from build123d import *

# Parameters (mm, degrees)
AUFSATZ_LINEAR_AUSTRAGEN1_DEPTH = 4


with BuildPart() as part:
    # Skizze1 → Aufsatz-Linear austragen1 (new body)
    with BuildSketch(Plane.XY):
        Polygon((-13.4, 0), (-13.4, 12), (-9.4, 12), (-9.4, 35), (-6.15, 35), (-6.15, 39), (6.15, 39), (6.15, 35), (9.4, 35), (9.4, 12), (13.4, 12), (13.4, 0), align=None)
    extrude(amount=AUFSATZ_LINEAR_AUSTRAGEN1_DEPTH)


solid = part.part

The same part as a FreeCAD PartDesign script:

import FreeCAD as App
import Part
import Sketcher


def add_polygon(sketch, points):
    """Adds a closed chain of lines whose ends are joined by coincident constraints."""
    first, n = sketch.GeometryCount, len(points)
    for a, b in zip(points, points[1:] + points[:1]):
        sketch.addGeometry(Part.LineSegment(App.Vector(*a, 0), App.Vector(*b, 0)), False)
    for i in range(n):
        sketch.addConstraint(Sketcher.Constraint("Coincident", first + i, 2, first + (i + 1) % n, 1))

doc = App.newDocument("Part")
params = doc.addObject("Spreadsheet::Sheet", "Params")
for row, (alias, value) in enumerate([
    ("sketch1_width", "4 mm"),
    ("sketch1_height", "12 mm"),
    ("sketch1_height2", "23 mm"),
    ("sketch1_width2", "26.8 mm"),
    ("sketch1_width3", "12.3 mm"),
    ("pad1_length", "4 mm"),
], start=1):
    params.set(f"A{row}", alias)
    params.set(f"B{row}", "=" + value)
    params.setAlias(f"B{row}", alias)

body = doc.addObject("PartDesign::Body", "Body")

sketch1 = body.newObject("Sketcher::SketchObject", "Sketch")
sketch1.AttachmentSupport = (doc.getObject("XY_Plane"), [""])
sketch1.MapMode = "FlatFace"
add_polygon(sketch1, [(-13.4, 12), (-13.4, 0), (13.4, 0), (13.4, 12), (9.4, 12), (9.4, 35), (6.2, 35), (6.2, 39), (-6.2, 39), (-6.2, 35), (-9.4, 35), (-9.4, 12)])
sketch1.addConstraint(Sketcher.Constraint("Vertical", 0))
sketch1.addConstraint(Sketcher.Constraint("Horizontal", 1))
sketch1.addConstraint(Sketcher.Constraint("Vertical", 2))
sketch1.addConstraint(Sketcher.Constraint("Horizontal", 3))
sketch1.addConstraint(Sketcher.Constraint("Vertical", 4))
sketch1.addConstraint(Sketcher.Constraint("Horizontal", 5))
sketch1.addConstraint(Sketcher.Constraint("Vertical", 6))
sketch1.addConstraint(Sketcher.Constraint("Horizontal", 7))
sketch1.addConstraint(Sketcher.Constraint("Vertical", 8))
sketch1.addConstraint(Sketcher.Constraint("Horizontal", 9))
sketch1.addConstraint(Sketcher.Constraint("Vertical", 10))
sketch1.addConstraint(Sketcher.Constraint("Horizontal", 11))
sketch1.addConstraint(Sketcher.Constraint("Symmetric", 0, 2, 1, 2, -1, 1))
sketch1.addConstraint(Sketcher.Constraint("Symmetric", 5, 2, 8, 2, -2))
sketch1.addConstraint(Sketcher.Constraint("Symmetric", 3, 2, 10, 2, -2))
sketch1.addConstraint(Sketcher.Constraint("Equal", 11, 6))
sketch1.addConstraint(Sketcher.Constraint("DistanceX", 3, 2, 3, 1, 4.0))
sketch1.addConstraint(Sketcher.Constraint("DistanceY", 0, 2, 0, 1, 12.0))
sketch1.addConstraint(Sketcher.Constraint("DistanceY", 4, 1, 4, 2, 23.0))
sketch1.addConstraint(Sketcher.Constraint("DistanceX", 1, 1, 1, 2, 26.8))
sketch1.addConstraint(Sketcher.Constraint("DistanceX", 7, 2, 7, 1, 12.3))
sketch1.setExpression("Constraints[28]", "Params.sketch1_width")
sketch1.setExpression("Constraints[29]", "Params.sketch1_height")
sketch1.setExpression("Constraints[30]", "Params.sketch1_height2")
sketch1.setExpression("Constraints[31]", "Params.sketch1_width2")
sketch1.setExpression("Constraints[32]", "Params.sketch1_width3")
pad1 = body.newObject("PartDesign::Pad", "Pad")
pad1.Profile = sketch1
pad1.setExpression("Length", "Params.pad1_length")

doc.recompute()
